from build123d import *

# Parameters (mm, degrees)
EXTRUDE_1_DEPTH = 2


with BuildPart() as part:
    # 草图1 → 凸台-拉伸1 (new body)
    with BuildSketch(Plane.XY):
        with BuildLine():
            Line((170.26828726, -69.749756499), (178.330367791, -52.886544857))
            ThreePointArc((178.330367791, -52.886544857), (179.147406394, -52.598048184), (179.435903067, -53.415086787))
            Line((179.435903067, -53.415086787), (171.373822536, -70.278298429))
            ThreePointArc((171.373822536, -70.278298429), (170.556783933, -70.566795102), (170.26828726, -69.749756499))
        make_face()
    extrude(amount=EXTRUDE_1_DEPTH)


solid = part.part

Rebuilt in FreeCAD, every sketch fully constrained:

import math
import FreeCAD as App
import Part
import Sketcher
Q = App.Units.Quantity

doc = App.newDocument("Part")
body = doc.addObject("PartDesign::Body", "Body")

# Sketch on XY plane
sketch1 = doc.addObject("Sketcher::SketchObject", "Sketch")
body.addObject(sketch1)
sketch1.AttachmentSupport = (doc.XY_Plane, [""])
sketch1.MapMode = "FlatFace"
sketch1.addGeometry(Part.LineSegment(App.Vector(178.3, -52.9, 0), App.Vector(170.3, -69.7, 0)), False)
sketch1.addGeometry(Part.ArcOfCircle(Part.Circle(App.Vector(170.8, -70, 0), App.Vector(0, 0, 1), 0.6), math.radians(154), math.radians(334)), False)
sketch1.addGeometry(Part.LineSegment(App.Vector(171.4, -70.3, 0), App.Vector(179.4, -53.4, 0)), False)
sketch1.addGeometry(Part.ArcOfCircle(Part.Circle(App.Vector(178.9, -53.2, 0), App.Vector(0, 0, 1), 0.6), math.radians(-26), math.radians(154)), False)
sketch1.addConstraint(Sketcher.Constraint("Tangent", 0, 2, 1, 1))
sketch1.addConstraint(Sketcher.Constraint("Tangent", 1, 2, 2, 1))
sketch1.addConstraint(Sketcher.Constraint("Tangent", 2, 2, 3, 1))
sketch1.addConstraint(Sketcher.Constraint("Tangent", 3, 2, 0, 1))
sketch1.addConstraint(Sketcher.Constraint("Equal", 1, 3))
sketch1.addConstraint(Sketcher.Constraint("Radius", 1, Q("0.612692 mm")))
sketch1.addConstraint(Sketcher.Constraint("DistanceY", 1, 2, -1, 1, Q("70.278298 mm")))
sketch1.addConstraint(Sketcher.Constraint("Distance", 0, Q("18.691309 mm")))
sketch1.addConstraint(Sketcher.Constraint("DistanceX", 1, 3, 3, 3, Q("8.062081 mm")))
sketch1.addConstraint(Sketcher.Constraint("DistanceX", -1, 1, 1, 3, Q("170.821055 mm")))
pad1 = doc.addObject("PartDesign::Pad", "Pad")
body.addObject(pad1)
pad1.Profile = sketch1
pad1.Length = 2

doc.recompute()
